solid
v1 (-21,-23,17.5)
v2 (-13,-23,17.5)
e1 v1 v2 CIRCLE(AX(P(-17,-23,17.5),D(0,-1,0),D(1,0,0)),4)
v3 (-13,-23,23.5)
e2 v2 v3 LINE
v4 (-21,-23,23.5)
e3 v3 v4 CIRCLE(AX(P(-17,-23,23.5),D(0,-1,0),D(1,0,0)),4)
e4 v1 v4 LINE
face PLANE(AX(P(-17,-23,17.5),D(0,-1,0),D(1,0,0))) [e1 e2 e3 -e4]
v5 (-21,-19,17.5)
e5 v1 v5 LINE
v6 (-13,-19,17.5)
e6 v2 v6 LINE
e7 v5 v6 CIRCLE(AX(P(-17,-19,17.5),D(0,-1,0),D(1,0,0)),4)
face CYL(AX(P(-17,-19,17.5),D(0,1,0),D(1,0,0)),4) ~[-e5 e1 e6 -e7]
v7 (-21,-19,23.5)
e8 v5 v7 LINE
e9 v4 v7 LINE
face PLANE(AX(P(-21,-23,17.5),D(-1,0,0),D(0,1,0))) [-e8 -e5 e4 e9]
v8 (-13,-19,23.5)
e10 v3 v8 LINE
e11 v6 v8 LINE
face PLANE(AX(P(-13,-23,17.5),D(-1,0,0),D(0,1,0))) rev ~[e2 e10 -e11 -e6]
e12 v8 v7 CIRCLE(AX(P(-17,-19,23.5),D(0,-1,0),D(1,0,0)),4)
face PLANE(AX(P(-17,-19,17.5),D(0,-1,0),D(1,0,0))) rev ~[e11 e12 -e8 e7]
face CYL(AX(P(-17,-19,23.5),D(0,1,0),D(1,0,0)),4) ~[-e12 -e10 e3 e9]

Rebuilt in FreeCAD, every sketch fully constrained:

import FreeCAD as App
import Part
import Sketcher

V = App.Vector

doc = App.newDocument("Part")
body = doc.addObject("PartDesign::Body", "Body")

sketch1 = doc.addObject("Sketcher::SketchObject", "Sketch")
body.addObject(sketch1)
sketch1.AttachmentSupport = (doc.XZ_Plane, [""])
sketch1.MapMode = "FlatFace"
sketch1.AttachmentOffset = App.Placement(V(0, 0, 19), App.Rotation())
sketch1.addGeometry(Part.Circle(V(-17, 23.5, 0), V(0, 0, 1), 4), False)
sketch1.addConstraint(Sketcher.Constraint("Diameter", 0, 8.0))
sketch1.addConstraint(Sketcher.Constraint("DistanceX", 0, 3, -1, 1, 17.0))
sketch1.addConstraint(Sketcher.Constraint("DistanceY", -1, 1, 0, 3, 23.5))
pad1 = doc.addObject("PartDesign::Pad", "Pad")
body.addObject(pad1)
pad1.Profile = sketch1
pad1.Length = 4
body2 = doc.addObject("PartDesign::Body", "Body001")

sketch2 = doc.addObject("Sketcher::SketchObject", "Sketch001")
body2.addObject(sketch2)
sketch2.AttachmentSupport = (doc.getObject("XZ_Plane001"), [""])
sketch2.MapMode = "FlatFace"
sketch2.AttachmentOffset = App.Placement(V(0, 0, 19), App.Rotation())
sketch2.addGeometry(Part.Circle(V(-17, 17.5, 0), V(0, 0, 1), 4), False)
sketch2.addConstraint(Sketcher.Constraint("Diameter", 0, 8.0))
sketch2.addConstraint(Sketcher.Constraint("DistanceX", 0, 3, -1, 1, 17.0))
sketch2.addConstraint(Sketcher.Constraint("DistanceY", -1, 1, 0, 3, 17.5))
pad2 = doc.addObject("PartDesign::Pad", "Pad001")
body2.addObject(pad2)
pad2.Profile = sketch2
pad2.Length = 4
body3 = doc.addObject("PartDesign::Body", "Body002")

sketch3 = doc.addObject("Sketcher::SketchObject", "Sketch002")
body3.addObject(sketch3)
sketch3.AttachmentSupport = (doc.getObject("XY_Plane002"), [""])
sketch3.MapMode = "FlatFace"
sketch3.AttachmentOffset = App.Placement(V(0, 0, 17.5), App.Rotation())
sketch3.addGeometry(Part.LineSegment(V(-21, -19, 0), V(-21, -23, 0)), False)
sketch3.addGeometry(Part.LineSegment(V(-21, -23, 0), V(-13, -23, 0)), False)
sketch3.addGeometry(Part.LineSegment(V(-13, -23, 0), V(-13, -19, 0)), False)
sketch3.addGeometry(Part.LineSegment(V(-13, -19, 0), V(-21, -19, 0)), False)
sketch3.addConstraint(Sketcher.Constraint("Coincident", 0, 2, 1, 1))
sketch3.addConstraint(Sketcher.Constraint("Coincident", 1, 2, 2, 1))
sketch3.addConstraint(Sketcher.Constraint("Coincident", 2, 2, 3, 1))
sketch3.addConstraint(Sketcher.Constraint("Coincident", 3, 2, 0, 1))
sketch3.addConstraint(Sketcher.Constraint("Vertical", 0))
sketch3.addConstraint(Sketcher.Constraint("Horizontal", 1))
sketch3.addConstraint(Sketcher.Constraint("Vertical", 2))
sketch3.addConstraint(Sketcher.Constraint("Horizontal", 3))
sketch3.addConstraint(Sketcher.Constraint("DistanceX", 1, 1, 1, 2, 8.0))
sketch3.addConstraint(Sketcher.Constraint("DistanceY", 0, 2, 0, 1, 4.0))
sketch3.addConstraint(Sketcher.Constraint("DistanceX", 0, 2, -1, 1, 21.0))
sketch3.addConstraint(Sketcher.Constraint("DistanceY", 0, 2, -1, 1, 23.0))
pad3 = doc.addObject("PartDesign::Pad", "Pad002")
body3.addObject(pad3)
pad3.Profile = sketch3
pad3.Length = 6
doc.recompute()

boolean = doc.addObject("PartDesign::Boolean", "Boolean")
body3.addObject(boolean)
boolean.Type = "Fuse"
boolean.addObjects([body])
doc.recompute()

boolean2 = doc.addObject("PartDesign::Boolean", "Boolean001")
body3.addObject(boolean2)
boolean2.Type = "Fuse"
boolean2.addObjects([body2])

doc.recompute()
